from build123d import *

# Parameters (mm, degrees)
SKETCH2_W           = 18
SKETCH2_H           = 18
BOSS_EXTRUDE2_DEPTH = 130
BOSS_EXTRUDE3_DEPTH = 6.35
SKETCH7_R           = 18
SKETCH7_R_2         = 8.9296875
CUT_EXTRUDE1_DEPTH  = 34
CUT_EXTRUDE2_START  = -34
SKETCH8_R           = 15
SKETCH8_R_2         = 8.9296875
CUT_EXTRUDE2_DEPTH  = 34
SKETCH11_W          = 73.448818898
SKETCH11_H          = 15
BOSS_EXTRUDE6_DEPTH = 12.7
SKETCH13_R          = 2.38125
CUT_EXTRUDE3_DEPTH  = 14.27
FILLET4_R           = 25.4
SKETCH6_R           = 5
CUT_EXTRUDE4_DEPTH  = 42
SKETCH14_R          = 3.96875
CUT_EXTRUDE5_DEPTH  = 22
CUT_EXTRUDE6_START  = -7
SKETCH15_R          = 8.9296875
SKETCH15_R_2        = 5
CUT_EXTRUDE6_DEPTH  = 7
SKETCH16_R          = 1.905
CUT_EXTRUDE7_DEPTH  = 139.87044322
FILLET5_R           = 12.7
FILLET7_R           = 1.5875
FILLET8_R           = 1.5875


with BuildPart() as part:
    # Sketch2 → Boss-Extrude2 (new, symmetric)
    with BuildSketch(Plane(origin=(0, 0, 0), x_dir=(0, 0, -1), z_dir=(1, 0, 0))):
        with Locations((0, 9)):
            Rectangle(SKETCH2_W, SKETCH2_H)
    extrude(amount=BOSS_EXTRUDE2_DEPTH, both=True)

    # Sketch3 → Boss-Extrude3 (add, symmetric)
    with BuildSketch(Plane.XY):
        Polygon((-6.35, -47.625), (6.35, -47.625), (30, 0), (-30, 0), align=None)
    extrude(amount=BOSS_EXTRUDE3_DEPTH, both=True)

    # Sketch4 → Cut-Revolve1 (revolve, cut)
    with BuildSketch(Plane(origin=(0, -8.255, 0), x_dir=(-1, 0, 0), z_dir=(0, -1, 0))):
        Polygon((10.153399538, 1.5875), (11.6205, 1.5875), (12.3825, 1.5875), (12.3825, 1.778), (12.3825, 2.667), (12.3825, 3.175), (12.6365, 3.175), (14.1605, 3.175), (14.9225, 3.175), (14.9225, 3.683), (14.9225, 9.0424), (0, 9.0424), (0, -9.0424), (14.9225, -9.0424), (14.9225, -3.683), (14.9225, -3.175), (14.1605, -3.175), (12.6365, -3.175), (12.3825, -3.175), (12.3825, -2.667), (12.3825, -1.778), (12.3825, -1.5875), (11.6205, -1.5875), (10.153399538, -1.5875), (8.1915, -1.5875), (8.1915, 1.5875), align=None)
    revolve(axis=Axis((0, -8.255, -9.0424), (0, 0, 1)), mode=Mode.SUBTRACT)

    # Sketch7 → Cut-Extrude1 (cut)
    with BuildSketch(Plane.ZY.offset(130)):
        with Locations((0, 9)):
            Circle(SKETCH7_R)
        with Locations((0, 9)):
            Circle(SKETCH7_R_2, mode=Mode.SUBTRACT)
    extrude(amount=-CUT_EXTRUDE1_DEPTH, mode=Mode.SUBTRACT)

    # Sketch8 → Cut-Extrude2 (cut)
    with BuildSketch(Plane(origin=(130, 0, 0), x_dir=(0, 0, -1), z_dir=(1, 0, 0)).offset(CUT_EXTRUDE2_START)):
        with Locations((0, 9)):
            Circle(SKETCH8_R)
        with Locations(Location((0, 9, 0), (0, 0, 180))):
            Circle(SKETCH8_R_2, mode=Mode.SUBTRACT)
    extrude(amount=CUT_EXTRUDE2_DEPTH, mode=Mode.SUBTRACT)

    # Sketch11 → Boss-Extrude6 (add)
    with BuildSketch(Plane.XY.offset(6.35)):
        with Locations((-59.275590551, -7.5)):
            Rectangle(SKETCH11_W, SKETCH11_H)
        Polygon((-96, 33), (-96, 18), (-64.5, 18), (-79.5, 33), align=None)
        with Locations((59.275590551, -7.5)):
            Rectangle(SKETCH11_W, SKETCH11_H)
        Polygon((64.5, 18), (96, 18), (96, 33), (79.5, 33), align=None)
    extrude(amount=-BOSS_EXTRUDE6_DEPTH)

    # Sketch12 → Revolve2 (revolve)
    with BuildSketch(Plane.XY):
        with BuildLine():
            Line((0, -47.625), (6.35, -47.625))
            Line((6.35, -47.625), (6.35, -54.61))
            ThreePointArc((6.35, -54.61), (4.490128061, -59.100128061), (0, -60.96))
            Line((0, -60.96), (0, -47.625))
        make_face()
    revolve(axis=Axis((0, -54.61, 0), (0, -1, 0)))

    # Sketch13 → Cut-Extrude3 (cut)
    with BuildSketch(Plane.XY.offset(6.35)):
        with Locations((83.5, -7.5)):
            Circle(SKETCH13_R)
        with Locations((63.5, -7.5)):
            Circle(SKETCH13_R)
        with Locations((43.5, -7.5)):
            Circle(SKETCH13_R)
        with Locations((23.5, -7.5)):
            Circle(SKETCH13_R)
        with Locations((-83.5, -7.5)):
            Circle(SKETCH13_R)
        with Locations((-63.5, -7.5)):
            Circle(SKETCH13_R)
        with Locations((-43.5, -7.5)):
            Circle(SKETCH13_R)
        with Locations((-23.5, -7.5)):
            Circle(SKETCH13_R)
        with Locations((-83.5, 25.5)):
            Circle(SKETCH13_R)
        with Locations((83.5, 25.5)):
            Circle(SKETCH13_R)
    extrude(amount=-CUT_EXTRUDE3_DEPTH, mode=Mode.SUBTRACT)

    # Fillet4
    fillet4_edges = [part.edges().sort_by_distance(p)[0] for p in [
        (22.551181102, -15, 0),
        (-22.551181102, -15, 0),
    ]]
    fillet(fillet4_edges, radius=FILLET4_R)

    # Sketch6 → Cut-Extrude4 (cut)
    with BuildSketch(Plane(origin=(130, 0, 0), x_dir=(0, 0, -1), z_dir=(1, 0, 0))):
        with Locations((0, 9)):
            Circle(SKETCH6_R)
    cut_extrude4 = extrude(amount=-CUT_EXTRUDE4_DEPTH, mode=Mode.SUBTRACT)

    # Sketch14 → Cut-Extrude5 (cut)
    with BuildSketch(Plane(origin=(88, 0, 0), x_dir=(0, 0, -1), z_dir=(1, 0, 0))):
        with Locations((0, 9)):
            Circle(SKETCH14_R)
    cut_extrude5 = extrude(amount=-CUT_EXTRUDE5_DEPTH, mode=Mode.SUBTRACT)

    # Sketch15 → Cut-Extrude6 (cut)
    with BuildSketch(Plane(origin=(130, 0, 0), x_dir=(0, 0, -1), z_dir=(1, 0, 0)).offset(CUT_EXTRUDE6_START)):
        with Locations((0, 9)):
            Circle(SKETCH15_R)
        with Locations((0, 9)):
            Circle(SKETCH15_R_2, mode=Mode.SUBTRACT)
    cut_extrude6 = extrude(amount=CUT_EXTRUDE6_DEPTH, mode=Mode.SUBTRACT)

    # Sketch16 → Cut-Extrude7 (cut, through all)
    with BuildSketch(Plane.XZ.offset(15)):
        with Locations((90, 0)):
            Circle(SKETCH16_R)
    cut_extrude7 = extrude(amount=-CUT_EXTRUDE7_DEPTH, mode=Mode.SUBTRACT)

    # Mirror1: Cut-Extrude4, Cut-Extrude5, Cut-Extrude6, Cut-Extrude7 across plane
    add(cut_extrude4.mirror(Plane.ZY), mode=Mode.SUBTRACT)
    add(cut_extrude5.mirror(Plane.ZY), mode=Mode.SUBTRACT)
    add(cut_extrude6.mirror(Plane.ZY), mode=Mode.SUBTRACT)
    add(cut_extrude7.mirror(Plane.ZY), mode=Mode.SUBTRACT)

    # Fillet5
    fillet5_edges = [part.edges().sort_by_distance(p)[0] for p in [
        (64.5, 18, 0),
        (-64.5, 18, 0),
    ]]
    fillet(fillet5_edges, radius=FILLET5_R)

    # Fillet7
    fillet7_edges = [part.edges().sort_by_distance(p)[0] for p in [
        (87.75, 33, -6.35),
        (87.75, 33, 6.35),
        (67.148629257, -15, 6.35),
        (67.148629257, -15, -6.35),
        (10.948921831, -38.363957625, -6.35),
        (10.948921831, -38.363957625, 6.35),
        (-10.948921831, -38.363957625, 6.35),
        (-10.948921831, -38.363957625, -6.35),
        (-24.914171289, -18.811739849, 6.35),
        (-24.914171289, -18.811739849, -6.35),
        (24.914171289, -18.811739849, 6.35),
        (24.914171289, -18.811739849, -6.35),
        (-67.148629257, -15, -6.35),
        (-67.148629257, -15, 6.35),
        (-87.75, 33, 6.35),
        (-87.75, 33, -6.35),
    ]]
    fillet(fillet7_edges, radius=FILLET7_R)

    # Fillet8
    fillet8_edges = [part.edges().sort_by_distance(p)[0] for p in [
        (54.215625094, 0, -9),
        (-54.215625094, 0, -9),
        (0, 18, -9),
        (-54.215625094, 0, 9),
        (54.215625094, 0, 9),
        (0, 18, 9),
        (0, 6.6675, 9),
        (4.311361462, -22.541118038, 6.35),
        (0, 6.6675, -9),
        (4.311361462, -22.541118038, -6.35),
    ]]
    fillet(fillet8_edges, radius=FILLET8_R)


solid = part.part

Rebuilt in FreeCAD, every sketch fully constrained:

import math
import FreeCAD as App
import Part
import Sketcher
Q = App.Units.Quantity


def edges_at(feature, points):
    """Names of the edges that pass closest to the given points."""
    edges = feature.Shape.Edges
    near = lambda p: min(range(len(edges)), key=lambda i: edges[i].distToShape(Part.Vertex(*p))[0])
    return sorted({f"Edge{near(p) + 1}" for p in points})


def add_polygon(sketch, points):
    """Adds a closed chain of lines whose ends are joined by coincident constraints."""
    first, n = sketch.GeometryCount, len(points)
    for a, b in zip(points, points[1:] + points[:1]):
        sketch.addGeometry(Part.LineSegment(App.Vector(*a, 0), App.Vector(*b, 0)), False)
    for i in range(n):
        sketch.addConstraint(Sketcher.Constraint("Coincident", first + i, 2, first + (i + 1) % n, 1))

doc = App.newDocument("Part")
body = doc.addObject("PartDesign::Body", "Body")

sketch1 = body.newObject("Sketcher::SketchObject", "Sketch")
sketch1.AttachmentSupport = (doc.getObject("YZ_Plane"), [""])
sketch1.MapMode = "FlatFace"
add_polygon(sketch1, [(18, 9), (0, 9), (0, -9), (18, -9)])
sketch1.addConstraint([
    Sketcher.Constraint("Horizontal", 0),
    Sketcher.Constraint("Vertical", 1),
    Sketcher.Constraint("Horizontal", 2),
    Sketcher.Constraint("Vertical", 3),
    Sketcher.Constraint("Symmetric", 0, 2, 1, 2, -1, 1),
    Sketcher.Constraint("Equal", 2, 1),
    Sketcher.Constraint("DistanceX", 0, 2, 0, 1, Q("18 mm")),
])
pad1 = body.newObject("PartDesign::Pad", "Pad")
pad1.Profile = sketch1
pad1.Length = 260
pad1.Midplane = True

sketch2 = body.newObject("Sketcher::SketchObject", "Sketch001")
sketch2.AttachmentSupport = (doc.getObject("XY_Plane"), [""])
sketch2.MapMode = "FlatFace"
add_polygon(sketch2, [(-6.35, -47.625), (6.35, -47.625), (30, 0), (-30, 0)])
sketch2.addConstraint([
    Sketcher.Constraint("Horizontal", 0),
    Sketcher.Constraint("Horizontal", 2),
    Sketcher.Constraint("Symmetric", 1, 2, 2, 2, -1, 1),
    Sketcher.Constraint("Equal", 1, 3),
    Sketcher.Constraint("DistanceX", 0, 1, 0, 2, Q("0.5 in")),
    Sketcher.Constraint("DistanceY", 0, 2, -1, 1, Q("1.875 in")),
    Sketcher.Constraint("DistanceX", 2, 2, 2, 1, Q("60 mm")),
])
pad2 = body.newObject("PartDesign::Pad", "Pad001")
pad2.Profile = sketch2
pad2.Length = Q("0.5 in")
pad2.Midplane = True

sketch3 = body.newObject("Sketcher::SketchObject", "Sketch002")
sketch3.AttachmentSupport = (doc.getObject("XZ_Plane"), [""])
sketch3.MapMode = "FlatFace"
sketch3.AttachmentOffset = App.Placement(App.Vector(0, 0, 0.325 * 25.4), App.Rotation())
add_polygon(sketch3, [(-12.3825, -1.5875), (-12.3825, -3.175), (-14.9225, -3.175), (-14.9225, -9.0424), (0, -9.0424), (0, 9.0424), (-14.9225, 9.0424), (-14.9225, 3.175), (-12.3825, 3.175), (-12.3825, 1.5875), (-8.1915, 1.5875), (-8.1915, -1.5875)])
sketch3.addConstraint([
    Sketcher.Constraint("Vertical", 0),
    Sketcher.Constraint("Horizontal", 1),
    Sketcher.Constraint("Vertical", 2),
    Sketcher.Constraint("Horizontal", 3),
    Sketcher.Constraint("Vertical", 4),
    Sketcher.Constraint("Horizontal", 5),
    Sketcher.Constraint("Vertical", 6),
    Sketcher.Constraint("Horizontal", 7),
    Sketcher.Constraint("Vertical", 8),
    Sketcher.Constraint("Horizontal", 9),
    Sketcher.Constraint("Vertical", 10),
    Sketcher.Constraint("Horizontal", 11),
    Sketcher.Constraint("Symmetric", 3, 2, 4, 2, -1, 1),
    Sketcher.Constraint("Symmetric", 1, 2, 6, 2, -1),
    Sketcher.Constraint("Symmetric", 8, 2, 11, 2, -1),
    Sketcher.Constraint("DistanceX", 1, 2, 1, 1, Q("0.1 in")),
    Sketcher.Constraint("DistanceX", 9, 1, 9, 2, Q("0.165 in")),
    Sketcher.Constraint("DistanceY", 0, 2, 0, 1, Q("0.0625 in")),
    Sketcher.Constraint("DistanceY", 2, 2, 2, 1, Q("0.231 in")),
    Sketcher.Constraint("DistanceY", 4, 1, 4, 2, Q("0.712 in")),
    Sketcher.Constraint("DistanceX", 3, 1, 3, 2, Q("0.5875 in")),
])
groove = body.newObject("PartDesign::Groove", "Groove")
groove.Profile = sketch3
groove.ReferenceAxis = (sketch3, ["V_Axis"])
groove.Angle = 360

sketch4 = body.newObject("Sketcher::SketchObject", "Sketch003")
sketch4.AttachmentSupport = (doc.getObject("YZ_Plane"), [""])
sketch4.MapMode = "FlatFace"
sketch4.AttachmentOffset = App.Placement(App.Vector(0, 0, -130), App.Rotation())
sketch4.addGeometry([
    Part.Circle(App.Vector(9, 0, 0), App.Vector(0, 0, 1), 18),
    Part.Circle(App.Vector(9, 0, 0), App.Vector(0, 0, 1), 8.929688),
], False)
sketch4.addConstraint([
    Sketcher.Constraint("Coincident", 1, 3, 0, 3),
    Sketcher.Constraint("PointOnObject", 0, 3, -1),
    Sketcher.Constraint("Diameter", 1, Q("0.703125 in")),
    Sketcher.Constraint("Diameter", 0, Q("36 mm")),
    Sketcher.Constraint("DistanceX", -1, 1, 0, 3, Q("9 mm")),
])
pocket1 = body.newObject("PartDesign::Pocket", "Pocket")
pocket1.Profile = sketch4
pocket1.Length = 34
pocket1.Reversed = True

sketch5 = body.newObject("Sketcher::SketchObject", "Sketch004")
sketch5.AttachmentSupport = (doc.getObject("YZ_Plane"), [""])
sketch5.MapMode = "FlatFace"
sketch5.AttachmentOffset = App.Placement(App.Vector(0, 0, 96), App.Rotation())
sketch5.addGeometry([
    Part.Circle(App.Vector(9, 0, 0), App.Vector(0, 0, 1), 15),
    Part.Circle(App.Vector(9, 0, 0), App.Vector(0, 0, 1), 8.929688),
], False)
sketch5.addConstraint([
    Sketcher.Constraint("Coincident", 1, 3, 0, 3),
    Sketcher.Constraint("PointOnObject", 0, 3, -1),
    Sketcher.Constraint("Diameter", 1, Q("0.703125 in")),
    Sketcher.Constraint("Diameter", 0, Q("30 mm")),
    Sketcher.Constraint("DistanceX", -1, 1, 0, 3, Q("9 mm")),
])
pocket2 = body.newObject("PartDesign::Pocket", "Pocket001")
pocket2.Profile = sketch5
pocket2.Length = 34
pocket2.Reversed = True

sketch6 = body.newObject("Sketcher::SketchObject", "Sketch005")
sketch6.AttachmentSupport = (doc.getObject("XY_Plane"), [""])
sketch6.MapMode = "FlatFace"
sketch6.AttachmentOffset = App.Placement(App.Vector(0, 0, 0.25 * 25.4), App.Rotation())
add_polygon(sketch6, [(-96, 0), (-96, -15), (-22.551181, -15), (-22.551181, 0)])
add_polygon(sketch6, [(-96, 33), (-96, 18), (-64.5, 18), (-79.5, 33)])
add_polygon(sketch6, [(22.551181, 0), (22.551181, -15), (96, -15), (96, 0)])
add_polygon(sketch6, [(64.5, 18), (96, 18), (96, 33), (79.5, 33)])
sketch6.addConstraint([
    Sketcher.Constraint("Vertical", 0),
    Sketcher.Constraint("Horizontal", 1),
    Sketcher.Constraint("Vertical", 2),
    Sketcher.Constraint("Horizontal", 3),
    Sketcher.Constraint("Vertical", 4),
    Sketcher.Constraint("Horizontal", 5),
    Sketcher.Constraint("Horizontal", 7),
    Sketcher.Constraint("Vertical", 8),
    Sketcher.Constraint("Horizontal", 9),
    Sketcher.Constraint("Vertical", 10),
    Sketcher.Constraint("Horizontal", 11),
    Sketcher.Constraint("Horizontal", 12),
    Sketcher.Constraint("Vertical", 13),
    Sketcher.Constraint("Horizontal", 14),
    Sketcher.Constraint("Symmetric", 3, 2, 10, 2, -1, 1),
    Sketcher.Constraint("Symmetric", 1, 2, 8, 2, -2),
    Sketcher.Constraint("Symmetric", 4, 2, 12, 2, -2),
    Sketcher.Constraint("Symmetric", 6, 2, 14, 2, -2),
    Sketcher.Constraint("PointOnObject", 2, 2, -1),
    Sketcher.Constraint("Perpendicular", 6, 15),
    Sketcher.Constraint("Vertical", 3, 2, 4, 2),
    Sketcher.Constraint("Equal", 5, 12),
    Sketcher.Constraint("Equal", 2, 4),
    Sketcher.Constraint("DistanceX", 5, 1, 5, 2, Q("31.5 mm")),
    Sketcher.Constraint("DistanceX", 7, 2, 7, 1, Q("16.5 mm")),
    Sketcher.Constraint("DistanceX", 1, 1, 1, 2, Q("73.448819 mm")),
    Sketcher.Constraint("DistanceX", 0, 2, -1, 1, Q("96 mm")),
    Sketcher.Constraint("DistanceY", -1, 1, 4, 2, Q("18 mm")),
])
pad3 = body.newObject("PartDesign::Pad", "Pad002")
pad3.Profile = sketch6
pad3.Length = Q("0.5 in")
pad3.Reversed = True

sketch7 = body.newObject("Sketcher::SketchObject", "Sketch006")
sketch7.AttachmentSupport = (doc.getObject("XY_Plane"), [""])
sketch7.MapMode = "FlatFace"
sketch7.addGeometry([
    Part.LineSegment(App.Vector(6.35, -47.625, 0), App.Vector(0, -47.625, 0)),
    Part.LineSegment(App.Vector(0, -47.625, 0), App.Vector(0, -60.96, 0)),
    Part.ArcOfCircle(Part.Circle(App.Vector(0, -54.61, 0), App.Vector(0, 0, 1), 6.35), math.radians(-90), math.radians(0)),
    Part.LineSegment(App.Vector(6.35, -54.61, 0), App.Vector(6.35, -47.625, 0)),
], False)
sketch7.addConstraint([
    Sketcher.Constraint("Coincident", 0, 2, 1, 1),
    Sketcher.Constraint("Coincident", 1, 2, 2, 1),
    Sketcher.Constraint("Tangent", 2, 2, 3, 1),
    Sketcher.Constraint("Coincident", 3, 2, 0, 1),
    Sketcher.Constraint("Horizontal", 0),
    Sketcher.Constraint("Vertical", 1),
    Sketcher.Constraint("Vertical", 3),
    Sketcher.Constraint("PointOnObject", 2, 3, -2),
    Sketcher.Constraint("PointOnObject", 0, 2, -2),
    Sketcher.Constraint("Radius", 2, Q("0.25 in")),
    Sketcher.Constraint("DistanceY", 1, 2, -1, 1, Q("2.4 in")),
    Sketcher.Constraint("DistanceY", 1, 2, 1, 1, Q("0.525 in")),
])
revolution = body.newObject("PartDesign::Revolution", "Revolution")
revolution.Profile = sketch7
revolution.ReferenceAxis = (sketch7, ["V_Axis"])
revolution.Angle = 360

sketch8 = body.newObject("Sketcher::SketchObject", "Sketch007")
sketch8.AttachmentSupport = (doc.getObject("XY_Plane"), [""])
sketch8.MapMode = "FlatFace"
sketch8.AttachmentOffset = App.Placement(App.Vector(0, 0, 0.25 * 25.4), App.Rotation())
sketch8.addGeometry([
    Part.Circle(App.Vector(83.5, -7.5, 0), App.Vector(0, 0, 1), 2.38125),
    Part.Circle(App.Vector(63.5, -7.5, 0), App.Vector(0, 0, 1), 2.38125),
    Part.Circle(App.Vector(43.5, -7.5, 0), App.Vector(0, 0, 1), 2.38125),
    Part.Circle(App.Vector(23.5, -7.5, 0), App.Vector(0, 0, 1), 2.38125),
    Part.Circle(App.Vector(-83.5, -7.5, 0), App.Vector(0, 0, 1), 2.38125),
    Part.Circle(App.Vector(-63.5, -7.5, 0), App.Vector(0, 0, 1), 2.38125),
    Part.Circle(App.Vector(-43.5, -7.5, 0), App.Vector(0, 0, 1), 2.38125),
    Part.Circle(App.Vector(-23.5, -7.5, 0), App.Vector(0, 0, 1), 2.38125),
    Part.Circle(App.Vector(-83.5, 25.5, 0), App.Vector(0, 0, 1), 2.38125),
    Part.Circle(App.Vector(83.5, 25.5, 0), App.Vector(0, 0, 1), 2.38125),
], False)
sketch8.addConstraint([
    Sketcher.Constraint("Equal", 0, 1),
    Sketcher.Constraint("Equal", 1, 2),
    Sketcher.Constraint("Equal", 2, 3),
    Sketcher.Constraint("Equal", 3, 4),
    Sketcher.Constraint("Equal", 4, 5),
    Sketcher.Constraint("Equal", 5, 6),
    Sketcher.Constraint("Equal", 6, 7),
    Sketcher.Constraint("Equal", 7, 8),
    Sketcher.Constraint("Equal", 8, 9),
    Sketcher.Constraint("Symmetric", 0, 3, 4, 3, -2),
    Sketcher.Constraint("Symmetric", 1, 3, 5, 3, -2),
    Sketcher.Constraint("Symmetric", 2, 3, 6, 3, -2),
    Sketcher.Constraint("Symmetric", 3, 3, 7, 3, -2),
    Sketcher.Constraint("Symmetric", 8, 3, 9, 3, -2),
    Sketcher.Constraint("Horizontal", 0, 3, 1, 3),
    Sketcher.Constraint("Horizontal", 1, 3, 2, 3),
    Sketcher.Constraint("Horizontal", 2, 3, 3, 3),
    Sketcher.Constraint("Vertical", 4, 3, 8, 3),
    Sketcher.Constraint("Diameter", 0, Q("0.1875 in")),
    Sketcher.Constraint("DistanceX", 4, 3, 2, 3, Q("5 in")),
    Sketcher.Constraint("DistanceX", 5, 3, 1, 3, Q("5 in")),
    Sketcher.Constraint("DistanceX", -1, 1, 0, 3, Q("83.5 mm")),
    Sketcher.Constraint("DistanceY", 0, 3, -1, 1, Q("7.5 mm")),
    Sketcher.Constraint("DistanceX", -1, 1, 3, 3, Q("23.5 mm")),
    Sketcher.Constraint("DistanceY", -1, 1, 8, 3, Q("25.5 mm")),
])
pocket3 = body.newObject("PartDesign::Pocket", "Pocket002")
pocket3.Profile = sketch8
pocket3.Length = 14.27
doc.recompute()

fillet = body.newObject("PartDesign::Fillet", "Fillet")
fillet.Base = (pocket3, edges_at(pocket3, [(22.551, -15, 0), (-22.551, -15, 0)]))
fillet.Radius = Q("1 in")

sketch9 = body.newObject("Sketcher::SketchObject", "Sketch008")
sketch9.AttachmentSupport = (doc.getObject("YZ_Plane"), [""])
sketch9.MapMode = "FlatFace"
sketch9.AttachmentOffset = App.Placement(App.Vector(0, 0, 130), App.Rotation())
sketch9.addGeometry(Part.Circle(App.Vector(9, 0, 0), App.Vector(0, 0, 1), 5), False)
sketch9.addConstraint([
    Sketcher.Constraint("PointOnObject", 0, 3, -1),
    Sketcher.Constraint("Diameter", 0, Q("10 mm")),
    Sketcher.Constraint("DistanceX", -1, 1, 0, 3, Q("9 mm")),
])
pocket4 = body.newObject("PartDesign::Pocket", "Pocket003")
pocket4.Profile = sketch9
pocket4.Length = 42

sketch10 = body.newObject("Sketcher::SketchObject", "Sketch009")
sketch10.AttachmentSupport = (doc.getObject("YZ_Plane"), [""])
sketch10.MapMode = "FlatFace"
sketch10.AttachmentOffset = App.Placement(App.Vector(0, 0, 88), App.Rotation())
sketch10.addGeometry(Part.Circle(App.Vector(9, 0, 0), App.Vector(0, 0, 1), 3.96875), False)
sketch10.addConstraint([
    Sketcher.Constraint("PointOnObject", 0, 3, -1),
    Sketcher.Constraint("Diameter", 0, Q("0.3125 in")),
    Sketcher.Constraint("DistanceX", -1, 1, 0, 3, Q("9 mm")),
])
pocket5 = body.newObject("PartDesign::Pocket", "Pocket004")
pocket5.Profile = sketch10
pocket5.Length = 22

sketch11 = body.newObject("Sketcher::SketchObject", "Sketch010")
sketch11.AttachmentSupport = (doc.getObject("YZ_Plane"), [""])
sketch11.MapMode = "FlatFace"
sketch11.AttachmentOffset = App.Placement(App.Vector(0, 0, 123), App.Rotation())
sketch11.addGeometry([
    Part.Circle(App.Vector(9, 0, 0), App.Vector(0, 0, 1), 8.929688),
    Part.Circle(App.Vector(9, 0, 0), App.Vector(0, 0, 1), 5),
], False)
sketch11.addConstraint([
    Sketcher.Constraint("Coincident", 1, 3, 0, 3),
    Sketcher.Constraint("PointOnObject", 0, 3, -1),
    Sketcher.Constraint("Diameter", 0, Q("0.703125 in")),
    Sketcher.Constraint("Diameter", 1, Q("10 mm")),
    Sketcher.Constraint("DistanceX", -1, 1, 0, 3, Q("9 mm")),
])
pocket6 = body.newObject("PartDesign::Pocket", "Pocket005")
pocket6.Profile = sketch11
pocket6.Length = 7
pocket6.Reversed = True

sketch12 = body.newObject("Sketcher::SketchObject", "Sketch011")
sketch12.AttachmentSupport = (doc.getObject("XZ_Plane"), [""])
sketch12.MapMode = "FlatFace"
sketch12.AttachmentOffset = App.Placement(App.Vector(0, 0, 15), App.Rotation())
sketch12.addGeometry(Part.Circle(App.Vector(90, 0, 0), App.Vector(0, 0, 1), 1.905), False)
sketch12.addConstraint([
    Sketcher.Constraint("PointOnObject", 0, 3, -1),
    Sketcher.Constraint("Diameter", 0, Q("0.15 in")),
    Sketcher.Constraint("DistanceX", -1, 1, 0, 3, Q("90 mm")),
])
pocket7 = body.newObject("PartDesign::Pocket", "Pocket006")
pocket7.Profile = sketch12
pocket7.Type = "ThroughAll"
doc.recompute()

mirrored = body.newObject("PartDesign::Mirrored", "Mirrored")
mirrored.Originals = [pocket4, pocket5, pocket6, pocket7]
mirrored.MirrorPlane = (doc.getObject("YZ_Plane"), [""])
body.Tip = mirrored
doc.recompute()

fillet2 = body.newObject("PartDesign::Fillet", "Fillet001")
fillet2.Base = (mirrored, edges_at(mirrored, [(64.5, 18, 0), (-64.5, 18, 0)]))
fillet2.Radius = Q("0.5 in")
doc.recompute()

fillet3 = body.newObject("PartDesign::Fillet", "Fillet002")
fillet3.Base = (fillet2, edges_at(fillet2, [
    (87.75, 33, -6.35),
    (87.75, 33, 6.35),
    (67.149, -15, 6.35),
    (67.149, -15, -6.35),
    (10.949, -38.364, -6.35),
    (10.949, -38.364, 6.35),
    (-10.949, -38.364, 6.35),
    (-10.949, -38.364, -6.35),
    (-24.914, -18.812, 6.35),
    (-24.914, -18.812, -6.35),
    (24.914, -18.812, 6.35),
    (24.914, -18.812, -6.35),
    (-67.149, -15, -6.35),
    (-67.149, -15, 6.35),
    (-87.75, 33, 6.35),
    (-87.75, 33, -6.35),
]))
fillet3.Radius = Q("0.0625 in")
doc.recompute()

fillet4 = body.newObject("PartDesign::Fillet", "Fillet003")
fillet4.Base = (fillet3, edges_at(fillet3, [
    (54.216, 0, -9),
    (-54.216, 0, -9),
    (0, 18, -9),
    (-54.216, 0, 9),
    (54.216, 0, 9),
    (0, 18, 9),
    (0, 6.668, 9),
    (4.311, -22.541, 6.35),
    (0, 6.668, -9),
    (4.311, -22.541, -6.35),
]))
fillet4.Radius = Q("0.0625 in")

doc.recompute()
